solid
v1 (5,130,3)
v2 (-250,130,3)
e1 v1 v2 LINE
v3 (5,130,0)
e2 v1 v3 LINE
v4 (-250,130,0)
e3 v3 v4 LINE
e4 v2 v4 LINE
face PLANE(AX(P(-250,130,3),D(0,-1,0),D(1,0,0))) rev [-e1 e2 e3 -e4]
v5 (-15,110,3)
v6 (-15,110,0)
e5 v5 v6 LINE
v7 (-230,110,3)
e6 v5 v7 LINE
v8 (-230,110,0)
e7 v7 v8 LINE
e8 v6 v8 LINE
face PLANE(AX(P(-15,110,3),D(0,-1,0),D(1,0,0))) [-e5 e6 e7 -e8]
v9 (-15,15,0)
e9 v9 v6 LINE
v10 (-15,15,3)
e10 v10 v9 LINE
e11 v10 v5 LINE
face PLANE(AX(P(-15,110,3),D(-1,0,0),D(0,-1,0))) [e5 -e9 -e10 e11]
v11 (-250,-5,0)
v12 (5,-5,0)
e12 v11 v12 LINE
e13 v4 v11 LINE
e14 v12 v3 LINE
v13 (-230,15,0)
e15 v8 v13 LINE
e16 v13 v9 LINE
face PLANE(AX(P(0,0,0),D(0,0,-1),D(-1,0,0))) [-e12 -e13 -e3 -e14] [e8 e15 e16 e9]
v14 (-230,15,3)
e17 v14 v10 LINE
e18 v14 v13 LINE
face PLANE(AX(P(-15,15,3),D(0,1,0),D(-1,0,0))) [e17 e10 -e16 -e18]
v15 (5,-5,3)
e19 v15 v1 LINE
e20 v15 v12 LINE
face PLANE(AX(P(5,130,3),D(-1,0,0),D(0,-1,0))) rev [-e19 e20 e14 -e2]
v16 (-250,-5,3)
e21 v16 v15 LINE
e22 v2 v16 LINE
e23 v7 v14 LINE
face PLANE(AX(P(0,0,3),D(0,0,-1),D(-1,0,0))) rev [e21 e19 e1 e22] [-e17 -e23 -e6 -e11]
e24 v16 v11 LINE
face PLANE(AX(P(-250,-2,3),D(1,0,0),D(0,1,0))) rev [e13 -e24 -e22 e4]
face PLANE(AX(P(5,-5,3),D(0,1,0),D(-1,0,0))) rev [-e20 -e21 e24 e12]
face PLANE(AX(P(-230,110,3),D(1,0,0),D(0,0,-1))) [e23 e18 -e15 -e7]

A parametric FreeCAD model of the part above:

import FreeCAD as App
import Part
import Sketcher

V = App.Vector

doc = App.newDocument("Part")
body = doc.addObject("PartDesign::Body", "Body")

sketch1 = body.newObject("Sketcher::SketchObject", "Sketch")
sketch1.AttachmentSupport = (doc.getObject("XY_Plane"), [""])
sketch1.MapMode = "FlatFace"
sketch1.addGeometry([
    Part.LineSegment(V(5, -5, 0), V(5, 130, 0)),
    Part.LineSegment(V(5, 130, 0), V(-250, 130, 0)),
    Part.LineSegment(V(-250, 130, 0), V(-250, -5, 0)),
    Part.LineSegment(V(-250, -5, 0), V(5, -5, 0)),
    Part.LineSegment(V(-230, 15, 0), V(-230, 110, 0)),
    Part.LineSegment(V(-230, 110, 0), V(-15, 110, 0)),
    Part.LineSegment(V(-15, 110, 0), V(-15, 15, 0)),
    Part.LineSegment(V(-15, 15, 0), V(-230, 15, 0)),
], False)
sketch1.addConstraint([
    Sketcher.Constraint("Coincident", 0, 2, 1, 1),
    Sketcher.Constraint("Coincident", 1, 2, 2, 1),
    Sketcher.Constraint("Coincident", 2, 2, 3, 1),
    Sketcher.Constraint("Coincident", 3, 2, 0, 1),
    Sketcher.Constraint("Coincident", 4, 2, 5, 1),
    Sketcher.Constraint("Coincident", 5, 2, 6, 1),
    Sketcher.Constraint("Coincident", 6, 2, 7, 1),
    Sketcher.Constraint("Coincident", 7, 2, 4, 1),
    Sketcher.Constraint("Vertical", 0),
    Sketcher.Constraint("Horizontal", 1),
    Sketcher.Constraint("Vertical", 2),
    Sketcher.Constraint("Horizontal", 3),
    Sketcher.Constraint("Vertical", 4),
    Sketcher.Constraint("Horizontal", 5),
    Sketcher.Constraint("Vertical", 6),
    Sketcher.Constraint("Horizontal", 7),
    Sketcher.Constraint("DistanceX", 1, 2, 1, 1, 255.0),
    Sketcher.Constraint("DistanceX", 5, 1, 5, 2, 215.0),
    Sketcher.Constraint("DistanceY", 0, 1, 0, 2, 135.0),
    Sketcher.Constraint("DistanceY", 4, 1, 4, 2, 95.0),
    Sketcher.Constraint("DistanceX", -1, 1, 0, 2, 5.0),
    Sketcher.Constraint("DistanceY", -1, 1, 0, 2, 130.0),
    Sketcher.Constraint("DistanceX", 4, 2, -1, 1, 230.0),
    Sketcher.Constraint("DistanceY", -1, 1, 4, 2, 110.0),
])
pad1 = body.newObject("PartDesign::Pad", "Pad")
pad1.Profile = sketch1
pad1.Length = 3

doc.recompute()
